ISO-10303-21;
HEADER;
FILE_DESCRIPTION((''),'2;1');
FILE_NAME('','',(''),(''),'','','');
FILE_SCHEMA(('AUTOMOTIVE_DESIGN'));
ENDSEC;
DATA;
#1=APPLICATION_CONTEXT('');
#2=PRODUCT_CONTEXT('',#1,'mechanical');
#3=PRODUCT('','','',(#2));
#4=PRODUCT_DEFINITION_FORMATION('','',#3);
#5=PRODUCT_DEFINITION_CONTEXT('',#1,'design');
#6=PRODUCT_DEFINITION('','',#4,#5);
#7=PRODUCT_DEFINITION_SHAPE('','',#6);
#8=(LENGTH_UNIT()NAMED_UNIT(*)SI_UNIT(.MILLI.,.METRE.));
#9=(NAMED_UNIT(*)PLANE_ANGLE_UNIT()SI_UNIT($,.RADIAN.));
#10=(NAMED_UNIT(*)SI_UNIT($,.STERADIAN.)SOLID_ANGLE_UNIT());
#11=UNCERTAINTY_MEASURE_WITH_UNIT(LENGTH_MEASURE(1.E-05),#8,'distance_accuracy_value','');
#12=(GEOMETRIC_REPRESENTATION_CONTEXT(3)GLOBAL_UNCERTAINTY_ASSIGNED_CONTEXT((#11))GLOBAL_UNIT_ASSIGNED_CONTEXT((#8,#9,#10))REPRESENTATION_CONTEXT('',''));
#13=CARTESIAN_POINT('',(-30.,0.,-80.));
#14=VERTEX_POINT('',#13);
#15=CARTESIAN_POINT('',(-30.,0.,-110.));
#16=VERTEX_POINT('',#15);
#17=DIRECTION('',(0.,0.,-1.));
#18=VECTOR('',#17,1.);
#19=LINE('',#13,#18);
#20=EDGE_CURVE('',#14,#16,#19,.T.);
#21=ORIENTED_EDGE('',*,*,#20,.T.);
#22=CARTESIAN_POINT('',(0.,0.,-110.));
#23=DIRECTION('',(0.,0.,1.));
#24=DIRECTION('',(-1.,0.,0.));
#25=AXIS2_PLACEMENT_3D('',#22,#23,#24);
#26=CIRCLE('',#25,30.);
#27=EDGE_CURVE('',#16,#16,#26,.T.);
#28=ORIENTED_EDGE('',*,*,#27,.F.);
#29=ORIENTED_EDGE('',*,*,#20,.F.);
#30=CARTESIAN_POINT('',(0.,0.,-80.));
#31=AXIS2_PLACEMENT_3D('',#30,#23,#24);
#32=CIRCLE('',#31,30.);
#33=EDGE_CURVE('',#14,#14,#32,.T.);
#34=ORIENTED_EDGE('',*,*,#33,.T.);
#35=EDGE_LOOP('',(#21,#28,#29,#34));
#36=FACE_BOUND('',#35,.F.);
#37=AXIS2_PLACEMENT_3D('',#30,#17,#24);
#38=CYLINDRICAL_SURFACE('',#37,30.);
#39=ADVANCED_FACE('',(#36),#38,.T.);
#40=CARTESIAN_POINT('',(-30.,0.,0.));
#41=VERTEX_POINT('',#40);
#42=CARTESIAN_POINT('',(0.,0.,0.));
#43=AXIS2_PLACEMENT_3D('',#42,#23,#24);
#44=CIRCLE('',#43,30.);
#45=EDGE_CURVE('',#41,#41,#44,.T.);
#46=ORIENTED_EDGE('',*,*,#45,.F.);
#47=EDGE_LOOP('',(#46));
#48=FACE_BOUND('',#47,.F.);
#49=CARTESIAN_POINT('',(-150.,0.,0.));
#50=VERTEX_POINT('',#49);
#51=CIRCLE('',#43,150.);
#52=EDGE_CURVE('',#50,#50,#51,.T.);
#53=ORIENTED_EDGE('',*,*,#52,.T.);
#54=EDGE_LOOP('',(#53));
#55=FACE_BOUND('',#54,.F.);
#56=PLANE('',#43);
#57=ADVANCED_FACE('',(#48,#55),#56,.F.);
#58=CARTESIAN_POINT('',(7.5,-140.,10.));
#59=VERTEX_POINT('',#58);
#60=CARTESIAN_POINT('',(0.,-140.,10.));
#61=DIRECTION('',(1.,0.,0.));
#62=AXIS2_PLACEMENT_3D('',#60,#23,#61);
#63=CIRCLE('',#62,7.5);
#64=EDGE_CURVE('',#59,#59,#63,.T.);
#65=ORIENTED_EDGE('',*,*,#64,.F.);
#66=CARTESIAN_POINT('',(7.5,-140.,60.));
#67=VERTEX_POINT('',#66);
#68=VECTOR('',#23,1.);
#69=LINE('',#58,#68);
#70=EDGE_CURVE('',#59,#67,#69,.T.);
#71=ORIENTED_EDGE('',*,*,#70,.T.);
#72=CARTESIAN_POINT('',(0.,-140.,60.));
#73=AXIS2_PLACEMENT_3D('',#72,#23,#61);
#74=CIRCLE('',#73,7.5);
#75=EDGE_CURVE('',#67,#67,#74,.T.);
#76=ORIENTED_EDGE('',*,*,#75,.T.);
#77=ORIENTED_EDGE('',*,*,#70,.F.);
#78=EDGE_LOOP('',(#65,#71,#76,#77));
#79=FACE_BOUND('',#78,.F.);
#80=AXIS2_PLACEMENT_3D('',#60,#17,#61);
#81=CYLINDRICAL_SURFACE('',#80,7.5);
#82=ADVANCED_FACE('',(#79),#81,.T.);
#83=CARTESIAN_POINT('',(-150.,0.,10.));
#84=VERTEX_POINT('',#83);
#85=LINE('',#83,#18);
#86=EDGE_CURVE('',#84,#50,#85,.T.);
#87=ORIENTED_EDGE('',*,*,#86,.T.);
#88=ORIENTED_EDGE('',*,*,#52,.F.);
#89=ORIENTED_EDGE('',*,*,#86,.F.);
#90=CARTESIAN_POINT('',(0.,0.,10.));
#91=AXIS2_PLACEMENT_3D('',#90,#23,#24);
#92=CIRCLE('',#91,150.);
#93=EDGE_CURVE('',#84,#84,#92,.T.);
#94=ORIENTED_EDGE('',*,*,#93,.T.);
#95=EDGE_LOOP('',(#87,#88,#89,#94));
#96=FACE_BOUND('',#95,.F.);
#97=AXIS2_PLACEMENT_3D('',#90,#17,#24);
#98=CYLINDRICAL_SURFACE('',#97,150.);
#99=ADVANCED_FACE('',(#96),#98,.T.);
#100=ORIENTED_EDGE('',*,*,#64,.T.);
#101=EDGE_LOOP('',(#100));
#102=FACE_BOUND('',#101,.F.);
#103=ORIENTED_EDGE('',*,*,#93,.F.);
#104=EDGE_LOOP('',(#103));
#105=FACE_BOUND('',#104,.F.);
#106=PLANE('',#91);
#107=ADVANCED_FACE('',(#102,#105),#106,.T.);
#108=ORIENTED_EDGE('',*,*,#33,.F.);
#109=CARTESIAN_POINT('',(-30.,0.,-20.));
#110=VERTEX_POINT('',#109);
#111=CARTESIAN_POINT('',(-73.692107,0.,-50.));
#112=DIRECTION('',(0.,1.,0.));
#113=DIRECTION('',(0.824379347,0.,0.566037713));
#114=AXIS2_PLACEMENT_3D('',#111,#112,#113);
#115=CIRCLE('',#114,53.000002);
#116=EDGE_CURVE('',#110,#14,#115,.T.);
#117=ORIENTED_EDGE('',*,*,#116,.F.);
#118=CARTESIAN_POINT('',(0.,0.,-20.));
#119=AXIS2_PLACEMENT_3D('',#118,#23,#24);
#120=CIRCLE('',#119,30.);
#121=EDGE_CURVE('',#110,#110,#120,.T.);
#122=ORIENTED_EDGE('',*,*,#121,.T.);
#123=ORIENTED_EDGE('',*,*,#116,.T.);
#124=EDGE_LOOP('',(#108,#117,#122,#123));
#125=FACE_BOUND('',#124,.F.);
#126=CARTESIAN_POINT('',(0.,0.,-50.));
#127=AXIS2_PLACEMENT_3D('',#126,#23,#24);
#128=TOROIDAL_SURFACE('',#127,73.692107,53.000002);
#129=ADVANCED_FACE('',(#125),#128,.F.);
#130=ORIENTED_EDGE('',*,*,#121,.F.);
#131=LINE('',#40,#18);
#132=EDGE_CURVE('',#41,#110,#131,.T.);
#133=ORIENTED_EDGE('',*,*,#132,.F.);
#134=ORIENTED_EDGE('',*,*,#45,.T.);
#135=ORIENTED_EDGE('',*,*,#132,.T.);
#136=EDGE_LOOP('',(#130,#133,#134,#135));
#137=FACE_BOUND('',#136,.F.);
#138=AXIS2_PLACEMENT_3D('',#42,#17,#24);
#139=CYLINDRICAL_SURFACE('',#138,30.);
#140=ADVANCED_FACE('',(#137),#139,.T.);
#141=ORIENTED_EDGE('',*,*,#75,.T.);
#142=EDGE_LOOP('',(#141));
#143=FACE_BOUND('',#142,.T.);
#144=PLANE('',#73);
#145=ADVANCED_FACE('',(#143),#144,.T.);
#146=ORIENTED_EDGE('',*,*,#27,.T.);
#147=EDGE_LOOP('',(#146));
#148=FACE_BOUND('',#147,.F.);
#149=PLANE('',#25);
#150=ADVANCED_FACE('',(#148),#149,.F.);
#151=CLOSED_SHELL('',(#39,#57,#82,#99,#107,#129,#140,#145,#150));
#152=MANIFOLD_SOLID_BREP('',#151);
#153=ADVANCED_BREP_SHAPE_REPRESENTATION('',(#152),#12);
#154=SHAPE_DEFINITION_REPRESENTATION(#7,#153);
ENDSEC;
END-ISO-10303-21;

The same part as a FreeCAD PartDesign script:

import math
import FreeCAD as App
import Part
import Sketcher
from FreeCAD import Vector
Q = App.Units.Quantity

doc = App.newDocument("Part")
body = doc.addObject("PartDesign::Body", "Body")

sketch1 = body.newObject("Sketcher::SketchObject", "Sketch")
sketch1.AttachmentSupport = (doc.getObject("XZ_Plane"), [""])
sketch1.MapMode = "FlatFace"
sketch1.addGeometry([
    Part.LineSegment(Vector(-150, 0, 0), Vector(-30, 0, 0)),
    Part.LineSegment(Vector(-30, 0, 0), Vector(-30, -20, 0)),
    Part.ArcOfCircle(Part.Circle(Vector(-74, -50, 0), Vector(0, 0, 1), 53), math.radians(-34), math.radians(34)),
    Part.LineSegment(Vector(-30, -80, 0), Vector(-30, -110, 0)),
    Part.LineSegment(Vector(-30, -110, 0), Vector(0, -110, 0)),
    Part.LineSegment(Vector(0, -110, 0), Vector(0, 10, 0)),
    Part.LineSegment(Vector(0, 10, 0), Vector(-150, 10, 0)),
    Part.LineSegment(Vector(-150, 10, 0), Vector(-150, 0, 0)),
], False)
sketch1.addConstraint([
    Sketcher.Constraint("Coincident", 0, 2, 1, 1),
    Sketcher.Constraint("Coincident", 1, 2, 2, 2),
    Sketcher.Constraint("Coincident", 2, 1, 3, 1),
    Sketcher.Constraint("Coincident", 3, 2, 4, 1),
    Sketcher.Constraint("Coincident", 4, 2, 5, 1),
    Sketcher.Constraint("Coincident", 5, 2, 6, 1),
    Sketcher.Constraint("Coincident", 6, 2, 7, 1),
    Sketcher.Constraint("Coincident", 7, 2, 0, 1),
    Sketcher.Constraint("Horizontal", 0),
    Sketcher.Constraint("Vertical", 1),
    Sketcher.Constraint("Vertical", 3),
    Sketcher.Constraint("Horizontal", 4),
    Sketcher.Constraint("Vertical", 5),
    Sketcher.Constraint("Horizontal", 6),
    Sketcher.Constraint("Vertical", 7),
    Sketcher.Constraint("PointOnObject", 0, 2, -1),
    Sketcher.Constraint("PointOnObject", 4, 2, -2),
    Sketcher.Constraint("Vertical", 1, 2, 2, 1),
    Sketcher.Constraint("Equal", 4, 3),
    Sketcher.Constraint("Equal", 0, 5),
    Sketcher.Constraint("DistanceX", 0, 1, 0, 2, Q("120 mm")),
    Sketcher.Constraint("DistanceX", 4, 1, 4, 2, Q("30 mm")),
    Sketcher.Constraint("DistanceY", 1, 2, 1, 1, Q("20 mm")),
    Sketcher.Constraint("DistanceY", 7, 2, 7, 1, Q("10 mm")),
    Sketcher.Constraint("Radius", 2, Q("53.000002 mm")),
])
revolution = body.newObject("PartDesign::Revolution", "Revolution")
revolution.Profile = sketch1
revolution.ReferenceAxis = (sketch1, ["V_Axis"])
revolution.Angle = 360

sketch2 = body.newObject("Sketcher::SketchObject", "Sketch001")
sketch2.AttachmentSupport = (doc.getObject("XY_Plane"), [""])
sketch2.MapMode = "FlatFace"
sketch2.AttachmentOffset = App.Placement(Vector(0, 0, 10), App.Rotation())
sketch2.addGeometry(Part.Circle(Vector(0, -140, 0), Vector(0, 0, 1), 8), False)
sketch2.addConstraint([
    Sketcher.Constraint("PointOnObject", 0, 3, -2),
    Sketcher.Constraint("Diameter", 0, Q("15 mm")),
    Sketcher.Constraint("DistanceY", 0, 3, -1, 1, Q("140 mm")),
])
pad1 = body.newObject("PartDesign::Pad", "Pad")
pad1.Profile = sketch2
pad1.Length = 50

doc.recompute()
